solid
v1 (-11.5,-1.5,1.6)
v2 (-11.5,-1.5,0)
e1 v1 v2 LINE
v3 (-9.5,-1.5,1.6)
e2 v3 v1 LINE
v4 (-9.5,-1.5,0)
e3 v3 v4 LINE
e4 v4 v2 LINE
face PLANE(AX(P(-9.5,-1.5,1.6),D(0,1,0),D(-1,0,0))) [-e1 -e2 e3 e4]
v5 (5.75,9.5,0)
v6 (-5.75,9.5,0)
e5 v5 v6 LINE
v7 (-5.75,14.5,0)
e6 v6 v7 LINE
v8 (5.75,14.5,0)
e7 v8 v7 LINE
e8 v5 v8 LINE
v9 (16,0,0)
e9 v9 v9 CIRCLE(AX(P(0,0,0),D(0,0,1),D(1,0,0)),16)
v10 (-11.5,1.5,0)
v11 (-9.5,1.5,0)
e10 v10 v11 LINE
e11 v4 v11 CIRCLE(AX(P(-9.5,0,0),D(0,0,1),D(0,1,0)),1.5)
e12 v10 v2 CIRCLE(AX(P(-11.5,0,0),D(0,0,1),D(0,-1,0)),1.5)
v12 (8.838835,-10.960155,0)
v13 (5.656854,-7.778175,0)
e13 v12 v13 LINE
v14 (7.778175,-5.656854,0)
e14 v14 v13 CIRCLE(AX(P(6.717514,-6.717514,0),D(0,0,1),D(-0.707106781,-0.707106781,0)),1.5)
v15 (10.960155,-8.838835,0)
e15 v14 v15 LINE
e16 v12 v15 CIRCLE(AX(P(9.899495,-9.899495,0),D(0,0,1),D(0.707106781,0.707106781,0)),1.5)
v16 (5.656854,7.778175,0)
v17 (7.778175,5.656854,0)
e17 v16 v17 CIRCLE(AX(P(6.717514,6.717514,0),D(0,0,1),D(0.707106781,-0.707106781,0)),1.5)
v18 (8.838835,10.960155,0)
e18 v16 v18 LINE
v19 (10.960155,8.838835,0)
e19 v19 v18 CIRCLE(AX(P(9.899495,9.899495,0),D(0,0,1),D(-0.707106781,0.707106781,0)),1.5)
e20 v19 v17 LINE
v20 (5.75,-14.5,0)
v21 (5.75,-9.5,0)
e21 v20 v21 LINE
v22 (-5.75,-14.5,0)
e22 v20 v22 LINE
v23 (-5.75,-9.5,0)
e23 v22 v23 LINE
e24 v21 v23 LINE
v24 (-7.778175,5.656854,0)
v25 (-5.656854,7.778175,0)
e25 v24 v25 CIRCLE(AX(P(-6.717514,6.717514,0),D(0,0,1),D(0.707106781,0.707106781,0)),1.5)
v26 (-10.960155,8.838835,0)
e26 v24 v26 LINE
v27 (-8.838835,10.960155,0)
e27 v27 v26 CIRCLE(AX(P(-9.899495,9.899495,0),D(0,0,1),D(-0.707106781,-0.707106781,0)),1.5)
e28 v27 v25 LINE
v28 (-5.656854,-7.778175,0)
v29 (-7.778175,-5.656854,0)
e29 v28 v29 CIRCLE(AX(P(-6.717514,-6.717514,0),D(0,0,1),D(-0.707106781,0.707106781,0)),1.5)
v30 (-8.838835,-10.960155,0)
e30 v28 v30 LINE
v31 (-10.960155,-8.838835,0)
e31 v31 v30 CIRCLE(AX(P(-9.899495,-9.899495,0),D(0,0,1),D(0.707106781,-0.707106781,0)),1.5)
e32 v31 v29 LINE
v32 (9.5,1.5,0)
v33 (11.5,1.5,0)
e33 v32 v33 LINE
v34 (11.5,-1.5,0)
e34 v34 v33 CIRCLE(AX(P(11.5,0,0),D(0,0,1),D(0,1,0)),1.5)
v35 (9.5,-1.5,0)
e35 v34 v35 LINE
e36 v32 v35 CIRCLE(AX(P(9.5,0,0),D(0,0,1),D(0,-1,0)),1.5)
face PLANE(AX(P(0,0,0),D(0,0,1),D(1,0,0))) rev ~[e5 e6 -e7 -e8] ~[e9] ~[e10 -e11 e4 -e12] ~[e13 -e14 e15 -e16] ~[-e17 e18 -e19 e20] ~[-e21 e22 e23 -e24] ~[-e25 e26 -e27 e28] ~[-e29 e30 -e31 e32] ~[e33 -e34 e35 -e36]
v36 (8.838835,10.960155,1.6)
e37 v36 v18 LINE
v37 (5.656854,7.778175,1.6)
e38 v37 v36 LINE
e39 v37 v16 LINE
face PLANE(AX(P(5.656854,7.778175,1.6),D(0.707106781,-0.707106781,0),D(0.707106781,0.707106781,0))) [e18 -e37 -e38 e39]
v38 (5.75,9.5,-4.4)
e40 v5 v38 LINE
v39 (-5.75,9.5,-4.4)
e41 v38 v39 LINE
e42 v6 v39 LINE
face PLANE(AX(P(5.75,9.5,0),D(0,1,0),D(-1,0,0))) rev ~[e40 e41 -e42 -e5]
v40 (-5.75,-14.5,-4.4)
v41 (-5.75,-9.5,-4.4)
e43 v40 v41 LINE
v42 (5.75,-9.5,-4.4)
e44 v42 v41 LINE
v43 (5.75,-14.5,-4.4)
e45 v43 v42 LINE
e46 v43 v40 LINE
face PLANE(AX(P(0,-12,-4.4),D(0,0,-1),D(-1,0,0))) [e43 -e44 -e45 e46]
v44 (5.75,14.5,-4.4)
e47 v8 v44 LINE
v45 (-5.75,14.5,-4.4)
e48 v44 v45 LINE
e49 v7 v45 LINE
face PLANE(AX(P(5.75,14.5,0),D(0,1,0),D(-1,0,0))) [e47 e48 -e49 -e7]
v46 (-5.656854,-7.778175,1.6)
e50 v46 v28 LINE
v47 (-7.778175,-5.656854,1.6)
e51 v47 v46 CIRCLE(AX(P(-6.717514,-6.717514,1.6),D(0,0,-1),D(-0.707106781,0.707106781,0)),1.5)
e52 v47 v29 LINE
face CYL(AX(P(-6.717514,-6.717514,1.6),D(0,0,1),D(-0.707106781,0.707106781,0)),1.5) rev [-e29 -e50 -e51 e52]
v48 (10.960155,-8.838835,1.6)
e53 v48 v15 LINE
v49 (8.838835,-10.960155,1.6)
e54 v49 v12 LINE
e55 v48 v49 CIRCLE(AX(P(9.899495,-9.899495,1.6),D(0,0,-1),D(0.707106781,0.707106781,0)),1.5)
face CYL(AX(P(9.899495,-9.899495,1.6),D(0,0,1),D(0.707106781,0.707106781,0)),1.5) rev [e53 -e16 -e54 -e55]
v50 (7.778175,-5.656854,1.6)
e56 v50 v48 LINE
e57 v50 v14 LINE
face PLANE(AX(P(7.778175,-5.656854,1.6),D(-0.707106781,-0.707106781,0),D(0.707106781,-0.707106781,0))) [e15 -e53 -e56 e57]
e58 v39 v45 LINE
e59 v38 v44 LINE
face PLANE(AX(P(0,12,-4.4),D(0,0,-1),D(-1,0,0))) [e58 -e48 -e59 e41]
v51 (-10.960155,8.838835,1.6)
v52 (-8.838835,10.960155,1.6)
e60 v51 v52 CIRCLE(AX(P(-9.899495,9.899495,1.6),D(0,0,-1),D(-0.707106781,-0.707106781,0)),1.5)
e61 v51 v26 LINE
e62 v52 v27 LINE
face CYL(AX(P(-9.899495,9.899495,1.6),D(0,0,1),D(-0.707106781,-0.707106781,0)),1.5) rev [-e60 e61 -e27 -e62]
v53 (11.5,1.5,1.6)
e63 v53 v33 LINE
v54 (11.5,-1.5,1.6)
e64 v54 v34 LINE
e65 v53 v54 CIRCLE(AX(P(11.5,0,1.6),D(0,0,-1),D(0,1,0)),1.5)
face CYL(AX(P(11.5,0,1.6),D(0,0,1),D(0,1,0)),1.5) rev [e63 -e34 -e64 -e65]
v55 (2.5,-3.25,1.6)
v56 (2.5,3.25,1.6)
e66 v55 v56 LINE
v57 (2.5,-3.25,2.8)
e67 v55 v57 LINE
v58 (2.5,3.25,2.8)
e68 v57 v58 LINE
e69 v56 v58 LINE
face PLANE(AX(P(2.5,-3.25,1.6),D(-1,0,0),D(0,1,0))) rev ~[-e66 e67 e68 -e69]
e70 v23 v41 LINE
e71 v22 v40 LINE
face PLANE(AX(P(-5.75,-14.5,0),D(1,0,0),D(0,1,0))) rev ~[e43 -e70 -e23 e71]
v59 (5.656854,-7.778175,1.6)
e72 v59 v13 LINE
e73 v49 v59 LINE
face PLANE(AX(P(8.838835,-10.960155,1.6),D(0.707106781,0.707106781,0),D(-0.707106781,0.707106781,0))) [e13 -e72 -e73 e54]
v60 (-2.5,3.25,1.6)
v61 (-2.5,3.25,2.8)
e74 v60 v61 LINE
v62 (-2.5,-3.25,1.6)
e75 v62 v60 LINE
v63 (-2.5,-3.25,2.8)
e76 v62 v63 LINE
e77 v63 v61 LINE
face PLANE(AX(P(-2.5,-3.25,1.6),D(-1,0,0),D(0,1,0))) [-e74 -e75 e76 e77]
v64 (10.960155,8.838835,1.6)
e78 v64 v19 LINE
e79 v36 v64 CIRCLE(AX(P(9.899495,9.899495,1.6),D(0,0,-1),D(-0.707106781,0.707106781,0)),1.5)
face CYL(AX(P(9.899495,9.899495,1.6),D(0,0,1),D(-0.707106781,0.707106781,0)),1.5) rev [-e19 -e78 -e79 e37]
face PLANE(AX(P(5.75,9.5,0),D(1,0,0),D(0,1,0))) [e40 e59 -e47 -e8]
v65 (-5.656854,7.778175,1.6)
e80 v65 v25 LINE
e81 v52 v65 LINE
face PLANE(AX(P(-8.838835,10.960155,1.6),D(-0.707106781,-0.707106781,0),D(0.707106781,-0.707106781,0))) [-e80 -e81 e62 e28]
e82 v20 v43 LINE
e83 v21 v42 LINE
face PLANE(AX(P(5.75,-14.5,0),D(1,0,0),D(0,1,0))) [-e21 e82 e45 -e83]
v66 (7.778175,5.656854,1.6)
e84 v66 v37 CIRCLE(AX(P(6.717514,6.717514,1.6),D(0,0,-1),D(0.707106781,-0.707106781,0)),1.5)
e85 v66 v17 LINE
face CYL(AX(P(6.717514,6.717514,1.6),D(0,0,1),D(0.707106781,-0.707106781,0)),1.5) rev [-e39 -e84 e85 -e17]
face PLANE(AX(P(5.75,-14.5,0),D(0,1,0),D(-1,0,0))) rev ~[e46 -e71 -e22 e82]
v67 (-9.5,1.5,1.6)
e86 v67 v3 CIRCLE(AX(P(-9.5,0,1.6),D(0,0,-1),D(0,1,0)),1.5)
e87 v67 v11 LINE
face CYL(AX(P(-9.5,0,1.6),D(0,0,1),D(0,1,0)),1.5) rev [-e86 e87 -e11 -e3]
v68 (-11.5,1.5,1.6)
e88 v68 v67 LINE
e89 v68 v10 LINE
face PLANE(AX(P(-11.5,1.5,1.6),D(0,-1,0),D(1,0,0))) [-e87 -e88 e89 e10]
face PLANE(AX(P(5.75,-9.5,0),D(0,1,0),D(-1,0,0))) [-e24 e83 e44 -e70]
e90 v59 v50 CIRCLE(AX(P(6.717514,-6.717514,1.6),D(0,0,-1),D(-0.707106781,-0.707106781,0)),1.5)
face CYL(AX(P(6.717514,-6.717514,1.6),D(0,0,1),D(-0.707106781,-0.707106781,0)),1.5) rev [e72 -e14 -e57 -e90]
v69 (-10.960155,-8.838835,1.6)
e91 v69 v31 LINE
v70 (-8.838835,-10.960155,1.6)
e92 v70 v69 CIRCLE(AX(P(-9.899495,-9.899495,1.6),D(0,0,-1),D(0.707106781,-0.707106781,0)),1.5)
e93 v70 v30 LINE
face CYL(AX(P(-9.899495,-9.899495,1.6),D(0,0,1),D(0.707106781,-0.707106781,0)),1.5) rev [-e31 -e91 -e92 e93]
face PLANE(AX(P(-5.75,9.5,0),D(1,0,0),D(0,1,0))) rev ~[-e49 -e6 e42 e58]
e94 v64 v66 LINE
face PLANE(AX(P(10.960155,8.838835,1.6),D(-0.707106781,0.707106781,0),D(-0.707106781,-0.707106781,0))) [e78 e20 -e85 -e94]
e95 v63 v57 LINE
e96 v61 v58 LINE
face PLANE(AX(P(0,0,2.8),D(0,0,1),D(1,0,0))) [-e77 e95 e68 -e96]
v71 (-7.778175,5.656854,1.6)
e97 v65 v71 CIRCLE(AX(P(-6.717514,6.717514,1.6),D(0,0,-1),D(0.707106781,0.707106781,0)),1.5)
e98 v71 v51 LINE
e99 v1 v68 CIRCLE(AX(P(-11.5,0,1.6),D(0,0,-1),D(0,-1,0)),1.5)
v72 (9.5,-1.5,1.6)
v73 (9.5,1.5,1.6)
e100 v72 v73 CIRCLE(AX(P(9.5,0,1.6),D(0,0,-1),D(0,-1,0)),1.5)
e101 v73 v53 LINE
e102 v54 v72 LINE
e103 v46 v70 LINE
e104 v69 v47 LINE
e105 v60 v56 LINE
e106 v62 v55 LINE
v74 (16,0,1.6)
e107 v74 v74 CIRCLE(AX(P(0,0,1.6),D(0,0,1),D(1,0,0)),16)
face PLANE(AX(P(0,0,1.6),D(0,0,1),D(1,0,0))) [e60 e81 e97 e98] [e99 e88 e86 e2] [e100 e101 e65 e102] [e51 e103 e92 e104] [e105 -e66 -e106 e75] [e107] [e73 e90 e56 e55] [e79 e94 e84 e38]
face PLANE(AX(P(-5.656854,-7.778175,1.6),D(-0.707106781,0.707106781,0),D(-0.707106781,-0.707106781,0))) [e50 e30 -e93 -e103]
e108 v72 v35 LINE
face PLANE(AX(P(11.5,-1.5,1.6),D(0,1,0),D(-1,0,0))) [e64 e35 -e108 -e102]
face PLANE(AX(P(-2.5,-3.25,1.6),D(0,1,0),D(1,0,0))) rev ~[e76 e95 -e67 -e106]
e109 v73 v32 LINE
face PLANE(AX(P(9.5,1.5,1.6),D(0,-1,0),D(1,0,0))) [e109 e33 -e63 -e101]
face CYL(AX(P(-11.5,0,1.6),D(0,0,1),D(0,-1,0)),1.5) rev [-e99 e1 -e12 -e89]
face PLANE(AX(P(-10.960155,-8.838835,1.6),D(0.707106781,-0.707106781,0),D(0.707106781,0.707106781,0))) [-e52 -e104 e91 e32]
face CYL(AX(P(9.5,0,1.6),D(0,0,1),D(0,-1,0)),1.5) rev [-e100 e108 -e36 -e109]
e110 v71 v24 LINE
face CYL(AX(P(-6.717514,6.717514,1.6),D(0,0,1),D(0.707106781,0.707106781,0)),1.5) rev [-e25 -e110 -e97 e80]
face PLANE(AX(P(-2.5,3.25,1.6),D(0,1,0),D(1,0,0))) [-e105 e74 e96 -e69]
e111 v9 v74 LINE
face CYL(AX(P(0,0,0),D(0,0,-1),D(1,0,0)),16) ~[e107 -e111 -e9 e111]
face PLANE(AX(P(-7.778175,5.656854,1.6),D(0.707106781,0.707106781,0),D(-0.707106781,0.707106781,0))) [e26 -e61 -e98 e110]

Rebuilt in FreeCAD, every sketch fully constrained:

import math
import FreeCAD as App
import Part
import Sketcher
from FreeCAD import Vector


def add_polygon(sketch, points):
    """Adds a closed chain of lines whose ends are joined by coincident constraints."""
    first, n = sketch.GeometryCount, len(points)
    for a, b in zip(points, points[1:] + points[:1]):
        sketch.addGeometry(Part.LineSegment(App.Vector(*a, 0), App.Vector(*b, 0)), False)
    for i in range(n):
        sketch.addConstraint(Sketcher.Constraint("Coincident", first + i, 2, first + (i + 1) % n, 1))

doc = App.newDocument("Part")
params = doc.addObject("Spreadsheet::Sheet", "Params")
for row, (alias, value) in enumerate([
    ("sketch1_diameter", "32 mm"),
    ("pad1_length", "1.6 mm"),
    ("sketch2_width", "5 mm"),
    ("sketch2_height", "6.5 mm"),
    ("pad2_length", "1.2 mm"),
    ("sketch3_radius", "1.5 mm"),
    ("sketch3_width", "2 mm"),
    ("sketch3_length", "4.5 mm"),
    ("sketch4_height", "5 mm"),
    ("sketch4_width", "11.5 mm"),
    ("pad3_length", "4.4 mm"),
], start=1):
    params.set(f"A{row}", alias)
    params.set(f"B{row}", "=" + value)
    params.setAlias(f"B{row}", alias)

body = doc.addObject("PartDesign::Body", "Body")

# Sketch on XY plane
sketch1 = body.newObject("Sketcher::SketchObject", "Sketch")
sketch1.AttachmentSupport = (doc.getObject("XY_Plane"), [""])
sketch1.MapMode = "FlatFace"
sketch1.addGeometry(Part.Circle(Vector(0, 0, 0), Vector(0, 0, 1), 16), False)
sketch1.addConstraint([
    Sketcher.Constraint("Coincident", 0, 3, -1, 1),
    Sketcher.Constraint("Diameter", 0, 32.0),
])
sketch1.setExpression("Constraints[1]", "Params.sketch1_diameter")
pad1 = body.newObject("PartDesign::Pad", "Pad")
pad1.Profile = sketch1
pad1.setExpression("Length", "Params.pad1_length")

# Sketch on XY plane
sketch2 = body.newObject("Sketcher::SketchObject", "Sketch001")
sketch2.AttachmentSupport = (doc.getObject("XY_Plane"), [""])
sketch2.MapMode = "FlatFace"
sketch2.AttachmentOffset = App.Placement(Vector(0, 0, 1.6), App.Rotation())
add_polygon(sketch2, [(-2, 3), (-2, -3), (2, -3), (2, 3)])  # lines 0-3
sketch2.addConstraint([
    Sketcher.Constraint("Vertical", 0),
    Sketcher.Constraint("Horizontal", 1),
    Sketcher.Constraint("Vertical", 2),
    Sketcher.Constraint("Horizontal", 3),
    Sketcher.Constraint("Symmetric", 0, 2, 2, 2, -1, 1),
    Sketcher.Constraint("DistanceX", 1, 1, 1, 2, 5.0),
    Sketcher.Constraint("DistanceY", 0, 2, 0, 1, 6.5),
])
sketch2.setExpression("Constraints[9]", "Params.sketch2_width")
sketch2.setExpression("Constraints[10]", "Params.sketch2_height")
pad2 = body.newObject("PartDesign::Pad", "Pad001")
pad2.Profile = sketch2
pad2.setExpression("Length", "Params.pad2_length")

# Sketch on XY plane
sketch3 = body.newObject("Sketcher::SketchObject", "Sketch002")
sketch3.AttachmentSupport = (doc.getObject("XY_Plane"), [""])
sketch3.MapMode = "FlatFace"
sketch3.AttachmentOffset = App.Placement(Vector(0, 0, 1.6), App.Rotation())
sketch3.addGeometry([
    Part.LineSegment(Vector(-8.8, -11, 0), Vector(-5.7, -7.8, 0)),  # 0
    Part.ArcOfCircle(Part.Circle(Vector(-6.7, -6.7, 0), Vector(0, 0, 1), 1.5), math.radians(-45), math.radians(135)),  # 1
    Part.LineSegment(Vector(-7.8, -5.7, 0), Vector(-11, -8.8, 0)),  # 2
    Part.ArcOfCircle(Part.Circle(Vector(-9.9, -9.9, 0), Vector(0, 0, 1), 1.5), math.radians(135), math.radians(315)),  # 3
    Part.LineSegment(Vector(-11.5, -1.5, 0), Vector(-9.5, -1.5, 0)),  # 4
    Part.ArcOfCircle(Part.Circle(Vector(-9.5, 0, 0), Vector(0, 0, 1), 1.5), math.radians(-90), math.radians(90)),  # 5
    Part.LineSegment(Vector(-9.5, 1.5, 0), Vector(-11.5, 1.5, 0)),  # 6
    Part.ArcOfCircle(Part.Circle(Vector(-11.5, 0, 0), Vector(0, 0, 1), 1.5), math.radians(90), math.radians(270)),  # 7
    Part.LineSegment(Vector(-11, 8.8, 0), Vector(-7.8, 5.7, 0)),  # 8
    Part.ArcOfCircle(Part.Circle(Vector(-6.7, 6.7, 0), Vector(0, 0, 1), 1.5), math.radians(-135), math.radians(45)),  # 9
    Part.LineSegment(Vector(-5.7, 7.8, 0), Vector(-8.8, 11, 0)),  # 10
    Part.ArcOfCircle(Part.Circle(Vector(-9.9, 9.9, 0), Vector(0, 0, 1), 1.5), math.radians(45), math.radians(225)),  # 11
    Part.LineSegment(Vector(8.8, 11, 0), Vector(5.7, 7.8, 0)),  # 12
    Part.ArcOfCircle(Part.Circle(Vector(6.7, 6.7, 0), Vector(0, 0, 1), 1.5), math.radians(135), math.radians(315)),  # 13
    Part.LineSegment(Vector(7.8, 5.7, 0), Vector(11, 8.8, 0)),  # 14
    Part.ArcOfCircle(Part.Circle(Vector(9.9, 9.9, 0), Vector(0, 0, 1), 1.5), math.radians(-45), math.radians(135)),  # 15
    Part.LineSegment(Vector(11, -8.8, 0), Vector(7.8, -5.7, 0)),  # 16
    Part.ArcOfCircle(Part.Circle(Vector(6.7, -6.7, 0), Vector(0, 0, 1), 1.5), math.radians(45), math.radians(225)),  # 17
    Part.LineSegment(Vector(5.7, -7.8, 0), Vector(8.8, -11, 0)),  # 18
    Part.ArcOfCircle(Part.Circle(Vector(9.9, -9.9, 0), Vector(0, 0, 1), 1.5), math.radians(-135), math.radians(45)),  # 19
    Part.LineSegment(Vector(11.5, 1.5, 0), Vector(9.5, 1.5, 0)),  # 20
    Part.ArcOfCircle(Part.Circle(Vector(9.5, 0, 0), Vector(0, 0, 1), 1.5), math.radians(90), math.radians(270)),  # 21
    Part.LineSegment(Vector(9.5, -1.5, 0), Vector(11.5, -1.5, 0)),  # 22
    Part.ArcOfCircle(Part.Circle(Vector(11.5, 0, 0), Vector(0, 0, 1), 1.5), math.radians(-90), math.radians(90)),  # 23
], False)
sketch3.addConstraint([
    Sketcher.Constraint("Tangent", 0, 2, 1, 1),
    Sketcher.Constraint("Tangent", 1, 2, 2, 1),
    Sketcher.Constraint("Tangent", 2, 2, 3, 1),
    Sketcher.Constraint("Tangent", 3, 2, 0, 1),
    Sketcher.Constraint("Tangent", 4, 2, 5, 1),
    Sketcher.Constraint("Tangent", 5, 2, 6, 1),
    Sketcher.Constraint("Tangent", 6, 2, 7, 1),
    Sketcher.Constraint("Tangent", 7, 2, 4, 1),
    Sketcher.Constraint("Tangent", 8, 2, 9, 1),
    Sketcher.Constraint("Tangent", 9, 2, 10, 1),
    Sketcher.Constraint("Tangent", 10, 2, 11, 1),
    Sketcher.Constraint("Tangent", 11, 2, 8, 1),
    Sketcher.Constraint("Tangent", 12, 2, 13, 1),
    Sketcher.Constraint("Tangent", 13, 2, 14, 1),
    Sketcher.Constraint("Tangent", 14, 2, 15, 1),
    Sketcher.Constraint("Tangent", 15, 2, 12, 1),
    Sketcher.Constraint("Tangent", 16, 2, 17, 1),
    Sketcher.Constraint("Tangent", 17, 2, 18, 1),
    Sketcher.Constraint("Tangent", 18, 2, 19, 1),
    Sketcher.Constraint("Tangent", 19, 2, 16, 1),
    Sketcher.Constraint("Tangent", 20, 2, 21, 1),
    Sketcher.Constraint("Tangent", 21, 2, 22, 1),
    Sketcher.Constraint("Tangent", 22, 2, 23, 1),
    Sketcher.Constraint("Tangent", 23, 2, 20, 1),
    Sketcher.Constraint("Horizontal", 4),
    Sketcher.Constraint("Horizontal", 6),
    Sketcher.Constraint("Horizontal", 20),
    Sketcher.Constraint("Horizontal", 22),
    Sketcher.Constraint("Equal", 1, 3),
    Sketcher.Constraint("Equal", 3, 5),
    Sketcher.Constraint("Equal", 7, 9),
    Sketcher.Constraint("Equal", 9, 11),
    Sketcher.Constraint("Equal", 11, 13),
    Sketcher.Constraint("Equal", 13, 15),
    Sketcher.Constraint("Equal", 15, 17),
    Sketcher.Constraint("Equal", 17, 19),
    Sketcher.Constraint("Equal", 19, 21),
    Sketcher.Constraint("Symmetric", 1, 3, 13, 3, -1, 1),
    Sketcher.Constraint("Symmetric", 3, 3, 15, 3, -1, 1),
    Sketcher.Constraint("Symmetric", 9, 3, 17, 3, -1, 1),
    Sketcher.Constraint("Symmetric", 11, 3, 19, 3, -1, 1),
    Sketcher.Constraint("Symmetric", 5, 3, 21, 3, -1, 1),
    Sketcher.Constraint("Symmetric", 9, 3, 13, 3, -2),
    Sketcher.Constraint("Symmetric", 11, 3, 15, 3, -2),
    Sketcher.Constraint("Symmetric", 7, 3, 23, 3, -2),
    Sketcher.Constraint("Perpendicular", 2, 8),
    Sketcher.Constraint("Radius", 1, 1.5),
    Sketcher.Constraint("DistanceX", 4, 1, 4, 2, 2.0),
    Sketcher.Constraint("Distance", 0, 4.5),
    Sketcher.Constraint("DistanceX", 5, 3, -1, 1, 9.5),
    Sketcher.Constraint("DistanceY", 1, 3, 9, 3, 13.435029),
    Sketcher.Constraint("DistanceX", 9, 3, 13, 3, 13.435029),
])
sketch3.setExpression("Constraints[46]", "Params.sketch3_radius")
sketch3.setExpression("Constraints[47]", "Params.sketch3_width")
sketch3.setExpression("Constraints[48]", "Params.sketch3_length")
pocket1 = body.newObject("PartDesign::Pocket", "Pocket")
pocket1.Profile = sketch3
pocket1.Type = "ThroughAll"

# Sketch on XY plane
sketch4 = body.newObject("Sketcher::SketchObject", "Sketch003")
sketch4.AttachmentSupport = (doc.getObject("XY_Plane"), [""])
sketch4.MapMode = "FlatFace"
add_polygon(sketch4, [(6, 14), (6, 10), (-6, 10), (-6, 14)])  # lines 0-3
add_polygon(sketch4, [(6, -10), (6, -14), (-6, -14), (-6, -10)])  # lines 4-7
sketch4.addConstraint([
    Sketcher.Constraint("Vertical", 0),
    Sketcher.Constraint("Horizontal", 1),
    Sketcher.Constraint("Vertical", 2),
    Sketcher.Constraint("Horizontal", 3),
    Sketcher.Constraint("Vertical", 4),
    Sketcher.Constraint("Horizontal", 5),
    Sketcher.Constraint("Vertical", 6),
    Sketcher.Constraint("Horizontal", 7),
    Sketcher.Constraint("Symmetric", 2, 2, 4, 2, -1, 1),
    Sketcher.Constraint("Symmetric", 0, 2, 6, 2, -1, 1),
    Sketcher.Constraint("Vertical", 3, 2, 4, 2),
    Sketcher.Constraint("DistanceY", 0, 2, 0, 1, 5.0),
    Sketcher.Constraint("DistanceX", 1, 2, 1, 1, 11.5),
    Sketcher.Constraint("DistanceY", 4, 2, 0, 2, 24.0),
])
sketch4.setExpression("Constraints[19]", "Params.sketch4_height")
sketch4.setExpression("Constraints[20]", "Params.sketch4_width")
pad3 = body.newObject("PartDesign::Pad", "Pad002")
pad3.Profile = sketch4
pad3.setExpression("Length", "Params.pad3_length")
pad3.Reversed = True

doc.recompute()
